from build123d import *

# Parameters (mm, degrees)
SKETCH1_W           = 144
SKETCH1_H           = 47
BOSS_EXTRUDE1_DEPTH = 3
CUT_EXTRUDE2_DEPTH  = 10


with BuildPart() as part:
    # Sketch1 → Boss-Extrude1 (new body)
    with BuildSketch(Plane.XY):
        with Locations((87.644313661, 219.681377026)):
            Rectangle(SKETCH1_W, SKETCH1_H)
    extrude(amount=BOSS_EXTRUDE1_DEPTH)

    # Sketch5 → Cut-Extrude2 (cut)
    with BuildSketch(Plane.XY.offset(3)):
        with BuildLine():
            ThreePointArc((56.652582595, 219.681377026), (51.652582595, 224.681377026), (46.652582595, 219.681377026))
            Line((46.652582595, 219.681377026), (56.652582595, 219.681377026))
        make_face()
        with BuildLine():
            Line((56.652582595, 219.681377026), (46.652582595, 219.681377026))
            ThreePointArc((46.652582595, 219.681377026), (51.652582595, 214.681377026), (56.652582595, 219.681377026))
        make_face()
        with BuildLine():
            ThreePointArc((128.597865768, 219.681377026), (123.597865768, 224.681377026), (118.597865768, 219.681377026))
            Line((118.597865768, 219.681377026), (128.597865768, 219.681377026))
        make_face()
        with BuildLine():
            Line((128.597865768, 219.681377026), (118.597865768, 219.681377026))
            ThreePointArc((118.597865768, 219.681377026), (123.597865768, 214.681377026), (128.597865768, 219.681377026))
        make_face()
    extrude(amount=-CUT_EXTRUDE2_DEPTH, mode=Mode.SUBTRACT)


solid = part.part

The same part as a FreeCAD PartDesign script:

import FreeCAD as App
import Part
import Sketcher
Q = App.Units.Quantity

doc = App.newDocument("Part")
body = doc.addObject("PartDesign::Body", "Body")

# Sketch on XY plane
sketch1 = body.newObject("Sketcher::SketchObject", "Sketch")
sketch1.AttachmentSupport = (doc.getObject("XY_Plane"), [""])
sketch1.MapMode = "FlatFace"
sketch1.addGeometry(Part.LineSegment(App.Vector(16, 243, 0), App.Vector(16, 196, 0)), False)
sketch1.addGeometry(Part.LineSegment(App.Vector(16, 196, 0), App.Vector(160, 196, 0)), False)
sketch1.addGeometry(Part.LineSegment(App.Vector(160, 196, 0), App.Vector(160, 243, 0)), False)
sketch1.addGeometry(Part.LineSegment(App.Vector(160, 243, 0), App.Vector(16, 243, 0)), False)
sketch1.addConstraint(Sketcher.Constraint("Coincident", 0, 2, 1, 1))
sketch1.addConstraint(Sketcher.Constraint("Coincident", 1, 2, 2, 1))
sketch1.addConstraint(Sketcher.Constraint("Coincident", 2, 2, 3, 1))
sketch1.addConstraint(Sketcher.Constraint("Coincident", 3, 2, 0, 1))
sketch1.addConstraint(Sketcher.Constraint("Vertical", 0))
sketch1.addConstraint(Sketcher.Constraint("Horizontal", 1))
sketch1.addConstraint(Sketcher.Constraint("Vertical", 2))
sketch1.addConstraint(Sketcher.Constraint("Horizontal", 3))
sketch1.addConstraint(Sketcher.Constraint("DistanceX", 1, 1, 1, 2, Q("144 mm")))
sketch1.addConstraint(Sketcher.Constraint("DistanceY", 0, 2, 0, 1, Q("47 mm")))
sketch1.addConstraint(Sketcher.Constraint("DistanceX", -1, 1, 0, 2, Q("15.644314 mm")))
sketch1.addConstraint(Sketcher.Constraint("DistanceY", -1, 1, 0, 2, Q("196.181377 mm")))
pad1 = body.newObject("PartDesign::Pad", "Pad")
pad1.Profile = sketch1
pad1.Length = 3

# Sketch on XY plane
sketch2 = body.newObject("Sketcher::SketchObject", "Sketch001")
sketch2.AttachmentSupport = (doc.getObject("XY_Plane"), [""])
sketch2.MapMode = "FlatFace"
sketch2.AttachmentOffset = App.Placement(App.Vector(0, 0, 3), App.Rotation())
sketch2.addGeometry(Part.Circle(App.Vector(52, 220, 0), App.Vector(0, 0, 1), 5), False)
sketch2.addGeometry(Part.Circle(App.Vector(124, 220, 0), App.Vector(0, 0, 1), 5), False)
sketch2.addConstraint(Sketcher.Constraint("Equal", 0, 1))
sketch2.addConstraint(Sketcher.Constraint("Horizontal", 0, 3, 1, 3))
sketch2.addConstraint(Sketcher.Constraint("Diameter", 0, Q("10 mm")))
sketch2.addConstraint(Sketcher.Constraint("DistanceX", -1, 1, 0, 3, Q("51.652583 mm")))
sketch2.addConstraint(Sketcher.Constraint("DistanceY", -1, 1, 0, 3, Q("219.681377 mm")))
sketch2.addConstraint(Sketcher.Constraint("DistanceX", -1, 1, 1, 3, Q("123.597866 mm")))
pocket1 = body.newObject("PartDesign::Pocket", "Pocket")
pocket1.Profile = sketch2
pocket1.Length = 10

doc.recompute()
